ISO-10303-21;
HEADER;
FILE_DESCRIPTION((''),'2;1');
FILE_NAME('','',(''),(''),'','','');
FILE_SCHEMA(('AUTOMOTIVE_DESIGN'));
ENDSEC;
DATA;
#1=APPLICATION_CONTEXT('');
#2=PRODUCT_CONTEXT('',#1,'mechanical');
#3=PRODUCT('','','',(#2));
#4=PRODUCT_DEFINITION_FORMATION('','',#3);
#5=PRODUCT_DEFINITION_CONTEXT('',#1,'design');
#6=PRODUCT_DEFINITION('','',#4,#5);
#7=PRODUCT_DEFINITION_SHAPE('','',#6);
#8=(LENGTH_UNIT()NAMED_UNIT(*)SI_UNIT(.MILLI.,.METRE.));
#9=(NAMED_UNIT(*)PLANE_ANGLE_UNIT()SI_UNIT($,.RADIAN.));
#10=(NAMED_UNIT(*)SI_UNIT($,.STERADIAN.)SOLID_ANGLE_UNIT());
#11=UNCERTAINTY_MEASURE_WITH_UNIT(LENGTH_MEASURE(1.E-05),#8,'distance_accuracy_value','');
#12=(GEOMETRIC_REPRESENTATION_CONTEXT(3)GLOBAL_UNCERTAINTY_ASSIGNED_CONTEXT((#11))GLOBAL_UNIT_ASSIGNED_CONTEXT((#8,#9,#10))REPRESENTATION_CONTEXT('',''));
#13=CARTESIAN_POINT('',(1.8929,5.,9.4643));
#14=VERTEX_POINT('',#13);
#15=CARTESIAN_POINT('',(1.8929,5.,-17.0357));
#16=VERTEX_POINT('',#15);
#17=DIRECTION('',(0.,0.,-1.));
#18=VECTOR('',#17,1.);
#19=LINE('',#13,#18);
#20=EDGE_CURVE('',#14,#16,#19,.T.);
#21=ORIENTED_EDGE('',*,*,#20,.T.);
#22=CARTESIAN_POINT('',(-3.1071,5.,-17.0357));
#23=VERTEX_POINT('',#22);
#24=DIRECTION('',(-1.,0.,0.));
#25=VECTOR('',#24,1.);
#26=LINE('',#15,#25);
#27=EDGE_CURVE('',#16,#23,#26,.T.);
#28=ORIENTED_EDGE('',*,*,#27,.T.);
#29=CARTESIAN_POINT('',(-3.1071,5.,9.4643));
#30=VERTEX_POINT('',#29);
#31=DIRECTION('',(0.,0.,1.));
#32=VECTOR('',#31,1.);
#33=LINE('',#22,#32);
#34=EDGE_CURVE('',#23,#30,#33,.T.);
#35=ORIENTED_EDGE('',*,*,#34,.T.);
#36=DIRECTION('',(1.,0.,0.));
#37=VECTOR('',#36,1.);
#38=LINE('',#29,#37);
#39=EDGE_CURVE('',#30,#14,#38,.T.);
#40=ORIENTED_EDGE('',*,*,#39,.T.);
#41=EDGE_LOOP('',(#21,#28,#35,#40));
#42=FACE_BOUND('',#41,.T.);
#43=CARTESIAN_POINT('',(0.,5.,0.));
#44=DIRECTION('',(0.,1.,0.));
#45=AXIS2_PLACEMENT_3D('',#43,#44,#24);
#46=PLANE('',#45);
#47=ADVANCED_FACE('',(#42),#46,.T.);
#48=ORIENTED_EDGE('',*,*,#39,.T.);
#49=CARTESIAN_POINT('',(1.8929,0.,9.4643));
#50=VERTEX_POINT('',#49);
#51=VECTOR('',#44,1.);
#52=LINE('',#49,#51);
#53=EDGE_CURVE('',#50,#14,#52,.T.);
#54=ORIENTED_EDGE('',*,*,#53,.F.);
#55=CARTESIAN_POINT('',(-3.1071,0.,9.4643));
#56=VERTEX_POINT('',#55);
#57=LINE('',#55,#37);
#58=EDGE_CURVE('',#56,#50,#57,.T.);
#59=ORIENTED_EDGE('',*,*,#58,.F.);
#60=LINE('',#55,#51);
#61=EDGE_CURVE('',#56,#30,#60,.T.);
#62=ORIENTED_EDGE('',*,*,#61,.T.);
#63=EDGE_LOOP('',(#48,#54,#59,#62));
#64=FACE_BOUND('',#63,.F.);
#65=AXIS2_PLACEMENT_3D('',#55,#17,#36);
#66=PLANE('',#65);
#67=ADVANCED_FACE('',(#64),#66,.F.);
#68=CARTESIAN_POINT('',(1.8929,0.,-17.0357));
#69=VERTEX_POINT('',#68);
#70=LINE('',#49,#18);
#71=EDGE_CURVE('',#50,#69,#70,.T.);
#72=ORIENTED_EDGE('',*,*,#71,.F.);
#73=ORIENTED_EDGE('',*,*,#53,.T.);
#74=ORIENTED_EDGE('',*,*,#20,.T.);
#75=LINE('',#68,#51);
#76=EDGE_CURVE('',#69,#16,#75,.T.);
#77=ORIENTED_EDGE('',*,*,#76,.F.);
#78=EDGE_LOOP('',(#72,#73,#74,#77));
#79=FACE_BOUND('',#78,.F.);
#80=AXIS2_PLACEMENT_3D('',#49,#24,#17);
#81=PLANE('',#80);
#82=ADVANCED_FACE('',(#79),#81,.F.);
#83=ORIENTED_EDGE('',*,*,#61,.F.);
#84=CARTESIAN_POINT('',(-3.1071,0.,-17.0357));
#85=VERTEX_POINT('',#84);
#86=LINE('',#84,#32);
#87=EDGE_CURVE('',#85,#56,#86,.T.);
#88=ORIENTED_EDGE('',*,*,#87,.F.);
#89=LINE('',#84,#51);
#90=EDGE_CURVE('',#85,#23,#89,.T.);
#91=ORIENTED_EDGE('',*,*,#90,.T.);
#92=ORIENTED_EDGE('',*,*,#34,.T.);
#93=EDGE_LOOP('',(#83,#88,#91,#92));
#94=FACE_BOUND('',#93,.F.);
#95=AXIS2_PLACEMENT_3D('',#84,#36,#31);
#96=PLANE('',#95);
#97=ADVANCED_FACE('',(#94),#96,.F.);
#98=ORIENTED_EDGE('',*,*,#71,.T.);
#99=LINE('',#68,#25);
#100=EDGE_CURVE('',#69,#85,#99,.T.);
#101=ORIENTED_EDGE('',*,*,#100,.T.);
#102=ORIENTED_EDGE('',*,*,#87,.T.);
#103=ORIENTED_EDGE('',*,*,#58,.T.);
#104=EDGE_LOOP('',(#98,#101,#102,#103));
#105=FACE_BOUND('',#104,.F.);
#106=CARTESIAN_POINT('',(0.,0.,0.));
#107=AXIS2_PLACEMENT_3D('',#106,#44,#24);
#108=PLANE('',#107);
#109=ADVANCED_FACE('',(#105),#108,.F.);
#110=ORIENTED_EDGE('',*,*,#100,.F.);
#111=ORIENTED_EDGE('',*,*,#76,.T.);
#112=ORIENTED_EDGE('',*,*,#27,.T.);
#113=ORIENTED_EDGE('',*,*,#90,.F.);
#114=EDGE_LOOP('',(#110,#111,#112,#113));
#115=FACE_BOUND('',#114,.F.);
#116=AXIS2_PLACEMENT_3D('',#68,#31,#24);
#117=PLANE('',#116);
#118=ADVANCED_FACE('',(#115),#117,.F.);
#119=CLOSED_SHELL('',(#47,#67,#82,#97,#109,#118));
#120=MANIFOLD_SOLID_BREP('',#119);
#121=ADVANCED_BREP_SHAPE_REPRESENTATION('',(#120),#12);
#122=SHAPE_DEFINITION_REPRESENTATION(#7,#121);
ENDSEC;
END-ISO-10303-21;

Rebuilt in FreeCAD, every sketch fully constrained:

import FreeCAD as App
import Part
import Sketcher

V = App.Vector

doc = App.newDocument("Part")
body = doc.addObject("PartDesign::Body", "Body")

# Sketch on XZ plane
sketch1 = doc.addObject("Sketcher::SketchObject", "Sketch")
body.addObject(sketch1)
sketch1.AttachmentSupport = (doc.XZ_Plane, [""])
sketch1.MapMode = "FlatFace"
sketch1.addGeometry(Part.LineSegment(V(-3, -17, 0), V(-3, 9, 0)), False)
sketch1.addGeometry(Part.LineSegment(V(-3, 9, 0), V(2, 9, 0)), False)
sketch1.addGeometry(Part.LineSegment(V(2, 9, 0), V(2, -17, 0)), False)
sketch1.addGeometry(Part.LineSegment(V(2, -17, 0), V(-3, -17, 0)), False)
sketch1.addConstraint(Sketcher.Constraint("Coincident", 0, 2, 1, 1))
sketch1.addConstraint(Sketcher.Constraint("Coincident", 1, 2, 2, 1))
sketch1.addConstraint(Sketcher.Constraint("Coincident", 2, 2, 3, 1))
sketch1.addConstraint(Sketcher.Constraint("Coincident", 3, 2, 0, 1))
sketch1.addConstraint(Sketcher.Constraint("Vertical", 0))
sketch1.addConstraint(Sketcher.Constraint("Horizontal", 1))
sketch1.addConstraint(Sketcher.Constraint("Vertical", 2))
sketch1.addConstraint(Sketcher.Constraint("Horizontal", 3))
sketch1.addConstraint(Sketcher.Constraint("DistanceX", 1, 1, 1, 2, 5.0))
sketch1.addConstraint(Sketcher.Constraint("DistanceY", 0, 1, 0, 2, 26.5))
sketch1.addConstraint(Sketcher.Constraint("DistanceX", 0, 2, -1, 1, 3.107))
sketch1.addConstraint(Sketcher.Constraint("DistanceY", -1, 1, 0, 2, 9.4643))
pad1 = doc.addObject("PartDesign::Pad", "Pad")
body.addObject(pad1)
pad1.Profile = sketch1
pad1.Length = 5
pad1.Reversed = True

doc.recompute()
